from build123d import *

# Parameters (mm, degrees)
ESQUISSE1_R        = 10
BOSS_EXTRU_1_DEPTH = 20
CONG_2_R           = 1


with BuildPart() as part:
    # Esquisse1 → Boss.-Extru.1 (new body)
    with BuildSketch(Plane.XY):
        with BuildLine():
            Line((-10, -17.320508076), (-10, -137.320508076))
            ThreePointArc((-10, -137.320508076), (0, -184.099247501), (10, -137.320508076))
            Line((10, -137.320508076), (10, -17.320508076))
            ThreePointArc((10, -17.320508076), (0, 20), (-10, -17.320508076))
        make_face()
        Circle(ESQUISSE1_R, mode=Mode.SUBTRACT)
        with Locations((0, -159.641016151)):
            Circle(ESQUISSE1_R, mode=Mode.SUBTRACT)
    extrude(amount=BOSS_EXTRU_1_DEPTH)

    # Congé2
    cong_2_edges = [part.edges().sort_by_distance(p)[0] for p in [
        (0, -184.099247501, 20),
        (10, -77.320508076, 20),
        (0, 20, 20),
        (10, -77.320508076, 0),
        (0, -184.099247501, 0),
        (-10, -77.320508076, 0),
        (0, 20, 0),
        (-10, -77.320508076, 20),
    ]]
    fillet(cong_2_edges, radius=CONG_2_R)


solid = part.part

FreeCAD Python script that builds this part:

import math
import FreeCAD as App
import Part
import Sketcher

V = App.Vector


def edges_at(feature, points):
    """Names of the edges that pass closest to the given points."""
    edges = feature.Shape.Edges
    near = lambda p: min(range(len(edges)), key=lambda i: edges[i].distToShape(Part.Vertex(*p))[0])
    return sorted({f"Edge{near(p) + 1}" for p in points})

doc = App.newDocument("Part")
params = doc.addObject("Spreadsheet::Sheet", "Params")
for row, (alias, value) in enumerate([
    ("sketch1_diameter", "20 mm"),
    ("sketch1_radius", "20 mm"),
    ("sketch1_height", "120 mm"),
    ("pad1_length", "20 mm"),
    ("fillet_radius", "1 mm"),
], start=1):
    params.set(f"A{row}", alias)
    params.set(f"B{row}", "=" + value)
    params.setAlias(f"B{row}", alias)

body = doc.addObject("PartDesign::Body", "Body")

sketch1 = body.newObject("Sketcher::SketchObject", "Sketch")
sketch1.AttachmentSupport = (doc.getObject("XY_Plane"), [""])
sketch1.MapMode = "FlatFace"
sketch1.addGeometry(Part.LineSegment(V(-10, -17.320508, 0), V(-10, -137.320508, 0)), False)
sketch1.addGeometry(Part.ArcOfCircle(Part.Circle(V(0, -159.641016, 0), V(0, 0, 1), 24.458231), math.radians(114.133261), math.radians(425.866739)), False)
sketch1.addGeometry(Part.LineSegment(V(10, -137.320508, 0), V(10, -17.320508, 0)), False)
sketch1.addGeometry(Part.ArcOfCircle(Part.Circle(V(0, 0, 0), V(0, 0, 1), 20), math.radians(-60), math.radians(240)), False)
sketch1.addGeometry(Part.Circle(V(0, -159.641016, 0), V(0, 0, 1), 10), False)
sketch1.addGeometry(Part.Circle(V(0, 0, 0), V(0, 0, 1), 10), False)
sketch1.addConstraint(Sketcher.Constraint("Coincident", 0, 2, 1, 1))
sketch1.addConstraint(Sketcher.Constraint("Coincident", 1, 2, 2, 1))
sketch1.addConstraint(Sketcher.Constraint("Coincident", 2, 2, 3, 1))
sketch1.addConstraint(Sketcher.Constraint("Coincident", 3, 2, 0, 1))
sketch1.addConstraint(Sketcher.Constraint("Vertical", 0))
sketch1.addConstraint(Sketcher.Constraint("Vertical", 2))
sketch1.addConstraint(Sketcher.Constraint("Coincident", 3, 3, -1, 1))
sketch1.addConstraint(Sketcher.Constraint("Coincident", 5, 3, -1, 1))
sketch1.addConstraint(Sketcher.Constraint("Coincident", 4, 3, 1, 3))
sketch1.addConstraint(Sketcher.Constraint("Equal", 4, 5))
sketch1.addConstraint(Sketcher.Constraint("Symmetric", 0, 2, 1, 2, -2))
sketch1.addConstraint(Sketcher.Constraint("Diameter", 4, 20.0))
sketch1.addConstraint(Sketcher.Constraint("Radius", 3, 20.0))
sketch1.addConstraint(Sketcher.Constraint("DistanceY", 0, 2, 0, 1, 120.0))
sketch1.addConstraint(Sketcher.Constraint("DistanceX", 0, 2, -1, 1, 10.0))
sketch1.addConstraint(Sketcher.Constraint("Radius", 1, 24.458231))
sketch1.setExpression("Constraints[11]", "Params.sketch1_diameter")
sketch1.setExpression("Constraints[12]", "Params.sketch1_radius")
sketch1.setExpression("Constraints[13]", "Params.sketch1_height")
pad1 = body.newObject("PartDesign::Pad", "Pad")
pad1.Profile = sketch1
pad1.setExpression("Length", "Params.pad1_length")
doc.recompute()

fillet = body.newObject("PartDesign::Fillet", "Fillet")
fillet.Base = (pad1, edges_at(pad1, [
    (0, -184.099, 20),
    (10, -77.321, 20),
    (0, 20, 20),
    (10, -77.321, 0),
    (0, -184.099, 0),
    (-10, -77.321, 0),
    (0, 20, 0),
    (-10, -77.321, 20),
]))
fillet.setExpression("Radius", "Params.fillet_radius")

doc.recompute()
